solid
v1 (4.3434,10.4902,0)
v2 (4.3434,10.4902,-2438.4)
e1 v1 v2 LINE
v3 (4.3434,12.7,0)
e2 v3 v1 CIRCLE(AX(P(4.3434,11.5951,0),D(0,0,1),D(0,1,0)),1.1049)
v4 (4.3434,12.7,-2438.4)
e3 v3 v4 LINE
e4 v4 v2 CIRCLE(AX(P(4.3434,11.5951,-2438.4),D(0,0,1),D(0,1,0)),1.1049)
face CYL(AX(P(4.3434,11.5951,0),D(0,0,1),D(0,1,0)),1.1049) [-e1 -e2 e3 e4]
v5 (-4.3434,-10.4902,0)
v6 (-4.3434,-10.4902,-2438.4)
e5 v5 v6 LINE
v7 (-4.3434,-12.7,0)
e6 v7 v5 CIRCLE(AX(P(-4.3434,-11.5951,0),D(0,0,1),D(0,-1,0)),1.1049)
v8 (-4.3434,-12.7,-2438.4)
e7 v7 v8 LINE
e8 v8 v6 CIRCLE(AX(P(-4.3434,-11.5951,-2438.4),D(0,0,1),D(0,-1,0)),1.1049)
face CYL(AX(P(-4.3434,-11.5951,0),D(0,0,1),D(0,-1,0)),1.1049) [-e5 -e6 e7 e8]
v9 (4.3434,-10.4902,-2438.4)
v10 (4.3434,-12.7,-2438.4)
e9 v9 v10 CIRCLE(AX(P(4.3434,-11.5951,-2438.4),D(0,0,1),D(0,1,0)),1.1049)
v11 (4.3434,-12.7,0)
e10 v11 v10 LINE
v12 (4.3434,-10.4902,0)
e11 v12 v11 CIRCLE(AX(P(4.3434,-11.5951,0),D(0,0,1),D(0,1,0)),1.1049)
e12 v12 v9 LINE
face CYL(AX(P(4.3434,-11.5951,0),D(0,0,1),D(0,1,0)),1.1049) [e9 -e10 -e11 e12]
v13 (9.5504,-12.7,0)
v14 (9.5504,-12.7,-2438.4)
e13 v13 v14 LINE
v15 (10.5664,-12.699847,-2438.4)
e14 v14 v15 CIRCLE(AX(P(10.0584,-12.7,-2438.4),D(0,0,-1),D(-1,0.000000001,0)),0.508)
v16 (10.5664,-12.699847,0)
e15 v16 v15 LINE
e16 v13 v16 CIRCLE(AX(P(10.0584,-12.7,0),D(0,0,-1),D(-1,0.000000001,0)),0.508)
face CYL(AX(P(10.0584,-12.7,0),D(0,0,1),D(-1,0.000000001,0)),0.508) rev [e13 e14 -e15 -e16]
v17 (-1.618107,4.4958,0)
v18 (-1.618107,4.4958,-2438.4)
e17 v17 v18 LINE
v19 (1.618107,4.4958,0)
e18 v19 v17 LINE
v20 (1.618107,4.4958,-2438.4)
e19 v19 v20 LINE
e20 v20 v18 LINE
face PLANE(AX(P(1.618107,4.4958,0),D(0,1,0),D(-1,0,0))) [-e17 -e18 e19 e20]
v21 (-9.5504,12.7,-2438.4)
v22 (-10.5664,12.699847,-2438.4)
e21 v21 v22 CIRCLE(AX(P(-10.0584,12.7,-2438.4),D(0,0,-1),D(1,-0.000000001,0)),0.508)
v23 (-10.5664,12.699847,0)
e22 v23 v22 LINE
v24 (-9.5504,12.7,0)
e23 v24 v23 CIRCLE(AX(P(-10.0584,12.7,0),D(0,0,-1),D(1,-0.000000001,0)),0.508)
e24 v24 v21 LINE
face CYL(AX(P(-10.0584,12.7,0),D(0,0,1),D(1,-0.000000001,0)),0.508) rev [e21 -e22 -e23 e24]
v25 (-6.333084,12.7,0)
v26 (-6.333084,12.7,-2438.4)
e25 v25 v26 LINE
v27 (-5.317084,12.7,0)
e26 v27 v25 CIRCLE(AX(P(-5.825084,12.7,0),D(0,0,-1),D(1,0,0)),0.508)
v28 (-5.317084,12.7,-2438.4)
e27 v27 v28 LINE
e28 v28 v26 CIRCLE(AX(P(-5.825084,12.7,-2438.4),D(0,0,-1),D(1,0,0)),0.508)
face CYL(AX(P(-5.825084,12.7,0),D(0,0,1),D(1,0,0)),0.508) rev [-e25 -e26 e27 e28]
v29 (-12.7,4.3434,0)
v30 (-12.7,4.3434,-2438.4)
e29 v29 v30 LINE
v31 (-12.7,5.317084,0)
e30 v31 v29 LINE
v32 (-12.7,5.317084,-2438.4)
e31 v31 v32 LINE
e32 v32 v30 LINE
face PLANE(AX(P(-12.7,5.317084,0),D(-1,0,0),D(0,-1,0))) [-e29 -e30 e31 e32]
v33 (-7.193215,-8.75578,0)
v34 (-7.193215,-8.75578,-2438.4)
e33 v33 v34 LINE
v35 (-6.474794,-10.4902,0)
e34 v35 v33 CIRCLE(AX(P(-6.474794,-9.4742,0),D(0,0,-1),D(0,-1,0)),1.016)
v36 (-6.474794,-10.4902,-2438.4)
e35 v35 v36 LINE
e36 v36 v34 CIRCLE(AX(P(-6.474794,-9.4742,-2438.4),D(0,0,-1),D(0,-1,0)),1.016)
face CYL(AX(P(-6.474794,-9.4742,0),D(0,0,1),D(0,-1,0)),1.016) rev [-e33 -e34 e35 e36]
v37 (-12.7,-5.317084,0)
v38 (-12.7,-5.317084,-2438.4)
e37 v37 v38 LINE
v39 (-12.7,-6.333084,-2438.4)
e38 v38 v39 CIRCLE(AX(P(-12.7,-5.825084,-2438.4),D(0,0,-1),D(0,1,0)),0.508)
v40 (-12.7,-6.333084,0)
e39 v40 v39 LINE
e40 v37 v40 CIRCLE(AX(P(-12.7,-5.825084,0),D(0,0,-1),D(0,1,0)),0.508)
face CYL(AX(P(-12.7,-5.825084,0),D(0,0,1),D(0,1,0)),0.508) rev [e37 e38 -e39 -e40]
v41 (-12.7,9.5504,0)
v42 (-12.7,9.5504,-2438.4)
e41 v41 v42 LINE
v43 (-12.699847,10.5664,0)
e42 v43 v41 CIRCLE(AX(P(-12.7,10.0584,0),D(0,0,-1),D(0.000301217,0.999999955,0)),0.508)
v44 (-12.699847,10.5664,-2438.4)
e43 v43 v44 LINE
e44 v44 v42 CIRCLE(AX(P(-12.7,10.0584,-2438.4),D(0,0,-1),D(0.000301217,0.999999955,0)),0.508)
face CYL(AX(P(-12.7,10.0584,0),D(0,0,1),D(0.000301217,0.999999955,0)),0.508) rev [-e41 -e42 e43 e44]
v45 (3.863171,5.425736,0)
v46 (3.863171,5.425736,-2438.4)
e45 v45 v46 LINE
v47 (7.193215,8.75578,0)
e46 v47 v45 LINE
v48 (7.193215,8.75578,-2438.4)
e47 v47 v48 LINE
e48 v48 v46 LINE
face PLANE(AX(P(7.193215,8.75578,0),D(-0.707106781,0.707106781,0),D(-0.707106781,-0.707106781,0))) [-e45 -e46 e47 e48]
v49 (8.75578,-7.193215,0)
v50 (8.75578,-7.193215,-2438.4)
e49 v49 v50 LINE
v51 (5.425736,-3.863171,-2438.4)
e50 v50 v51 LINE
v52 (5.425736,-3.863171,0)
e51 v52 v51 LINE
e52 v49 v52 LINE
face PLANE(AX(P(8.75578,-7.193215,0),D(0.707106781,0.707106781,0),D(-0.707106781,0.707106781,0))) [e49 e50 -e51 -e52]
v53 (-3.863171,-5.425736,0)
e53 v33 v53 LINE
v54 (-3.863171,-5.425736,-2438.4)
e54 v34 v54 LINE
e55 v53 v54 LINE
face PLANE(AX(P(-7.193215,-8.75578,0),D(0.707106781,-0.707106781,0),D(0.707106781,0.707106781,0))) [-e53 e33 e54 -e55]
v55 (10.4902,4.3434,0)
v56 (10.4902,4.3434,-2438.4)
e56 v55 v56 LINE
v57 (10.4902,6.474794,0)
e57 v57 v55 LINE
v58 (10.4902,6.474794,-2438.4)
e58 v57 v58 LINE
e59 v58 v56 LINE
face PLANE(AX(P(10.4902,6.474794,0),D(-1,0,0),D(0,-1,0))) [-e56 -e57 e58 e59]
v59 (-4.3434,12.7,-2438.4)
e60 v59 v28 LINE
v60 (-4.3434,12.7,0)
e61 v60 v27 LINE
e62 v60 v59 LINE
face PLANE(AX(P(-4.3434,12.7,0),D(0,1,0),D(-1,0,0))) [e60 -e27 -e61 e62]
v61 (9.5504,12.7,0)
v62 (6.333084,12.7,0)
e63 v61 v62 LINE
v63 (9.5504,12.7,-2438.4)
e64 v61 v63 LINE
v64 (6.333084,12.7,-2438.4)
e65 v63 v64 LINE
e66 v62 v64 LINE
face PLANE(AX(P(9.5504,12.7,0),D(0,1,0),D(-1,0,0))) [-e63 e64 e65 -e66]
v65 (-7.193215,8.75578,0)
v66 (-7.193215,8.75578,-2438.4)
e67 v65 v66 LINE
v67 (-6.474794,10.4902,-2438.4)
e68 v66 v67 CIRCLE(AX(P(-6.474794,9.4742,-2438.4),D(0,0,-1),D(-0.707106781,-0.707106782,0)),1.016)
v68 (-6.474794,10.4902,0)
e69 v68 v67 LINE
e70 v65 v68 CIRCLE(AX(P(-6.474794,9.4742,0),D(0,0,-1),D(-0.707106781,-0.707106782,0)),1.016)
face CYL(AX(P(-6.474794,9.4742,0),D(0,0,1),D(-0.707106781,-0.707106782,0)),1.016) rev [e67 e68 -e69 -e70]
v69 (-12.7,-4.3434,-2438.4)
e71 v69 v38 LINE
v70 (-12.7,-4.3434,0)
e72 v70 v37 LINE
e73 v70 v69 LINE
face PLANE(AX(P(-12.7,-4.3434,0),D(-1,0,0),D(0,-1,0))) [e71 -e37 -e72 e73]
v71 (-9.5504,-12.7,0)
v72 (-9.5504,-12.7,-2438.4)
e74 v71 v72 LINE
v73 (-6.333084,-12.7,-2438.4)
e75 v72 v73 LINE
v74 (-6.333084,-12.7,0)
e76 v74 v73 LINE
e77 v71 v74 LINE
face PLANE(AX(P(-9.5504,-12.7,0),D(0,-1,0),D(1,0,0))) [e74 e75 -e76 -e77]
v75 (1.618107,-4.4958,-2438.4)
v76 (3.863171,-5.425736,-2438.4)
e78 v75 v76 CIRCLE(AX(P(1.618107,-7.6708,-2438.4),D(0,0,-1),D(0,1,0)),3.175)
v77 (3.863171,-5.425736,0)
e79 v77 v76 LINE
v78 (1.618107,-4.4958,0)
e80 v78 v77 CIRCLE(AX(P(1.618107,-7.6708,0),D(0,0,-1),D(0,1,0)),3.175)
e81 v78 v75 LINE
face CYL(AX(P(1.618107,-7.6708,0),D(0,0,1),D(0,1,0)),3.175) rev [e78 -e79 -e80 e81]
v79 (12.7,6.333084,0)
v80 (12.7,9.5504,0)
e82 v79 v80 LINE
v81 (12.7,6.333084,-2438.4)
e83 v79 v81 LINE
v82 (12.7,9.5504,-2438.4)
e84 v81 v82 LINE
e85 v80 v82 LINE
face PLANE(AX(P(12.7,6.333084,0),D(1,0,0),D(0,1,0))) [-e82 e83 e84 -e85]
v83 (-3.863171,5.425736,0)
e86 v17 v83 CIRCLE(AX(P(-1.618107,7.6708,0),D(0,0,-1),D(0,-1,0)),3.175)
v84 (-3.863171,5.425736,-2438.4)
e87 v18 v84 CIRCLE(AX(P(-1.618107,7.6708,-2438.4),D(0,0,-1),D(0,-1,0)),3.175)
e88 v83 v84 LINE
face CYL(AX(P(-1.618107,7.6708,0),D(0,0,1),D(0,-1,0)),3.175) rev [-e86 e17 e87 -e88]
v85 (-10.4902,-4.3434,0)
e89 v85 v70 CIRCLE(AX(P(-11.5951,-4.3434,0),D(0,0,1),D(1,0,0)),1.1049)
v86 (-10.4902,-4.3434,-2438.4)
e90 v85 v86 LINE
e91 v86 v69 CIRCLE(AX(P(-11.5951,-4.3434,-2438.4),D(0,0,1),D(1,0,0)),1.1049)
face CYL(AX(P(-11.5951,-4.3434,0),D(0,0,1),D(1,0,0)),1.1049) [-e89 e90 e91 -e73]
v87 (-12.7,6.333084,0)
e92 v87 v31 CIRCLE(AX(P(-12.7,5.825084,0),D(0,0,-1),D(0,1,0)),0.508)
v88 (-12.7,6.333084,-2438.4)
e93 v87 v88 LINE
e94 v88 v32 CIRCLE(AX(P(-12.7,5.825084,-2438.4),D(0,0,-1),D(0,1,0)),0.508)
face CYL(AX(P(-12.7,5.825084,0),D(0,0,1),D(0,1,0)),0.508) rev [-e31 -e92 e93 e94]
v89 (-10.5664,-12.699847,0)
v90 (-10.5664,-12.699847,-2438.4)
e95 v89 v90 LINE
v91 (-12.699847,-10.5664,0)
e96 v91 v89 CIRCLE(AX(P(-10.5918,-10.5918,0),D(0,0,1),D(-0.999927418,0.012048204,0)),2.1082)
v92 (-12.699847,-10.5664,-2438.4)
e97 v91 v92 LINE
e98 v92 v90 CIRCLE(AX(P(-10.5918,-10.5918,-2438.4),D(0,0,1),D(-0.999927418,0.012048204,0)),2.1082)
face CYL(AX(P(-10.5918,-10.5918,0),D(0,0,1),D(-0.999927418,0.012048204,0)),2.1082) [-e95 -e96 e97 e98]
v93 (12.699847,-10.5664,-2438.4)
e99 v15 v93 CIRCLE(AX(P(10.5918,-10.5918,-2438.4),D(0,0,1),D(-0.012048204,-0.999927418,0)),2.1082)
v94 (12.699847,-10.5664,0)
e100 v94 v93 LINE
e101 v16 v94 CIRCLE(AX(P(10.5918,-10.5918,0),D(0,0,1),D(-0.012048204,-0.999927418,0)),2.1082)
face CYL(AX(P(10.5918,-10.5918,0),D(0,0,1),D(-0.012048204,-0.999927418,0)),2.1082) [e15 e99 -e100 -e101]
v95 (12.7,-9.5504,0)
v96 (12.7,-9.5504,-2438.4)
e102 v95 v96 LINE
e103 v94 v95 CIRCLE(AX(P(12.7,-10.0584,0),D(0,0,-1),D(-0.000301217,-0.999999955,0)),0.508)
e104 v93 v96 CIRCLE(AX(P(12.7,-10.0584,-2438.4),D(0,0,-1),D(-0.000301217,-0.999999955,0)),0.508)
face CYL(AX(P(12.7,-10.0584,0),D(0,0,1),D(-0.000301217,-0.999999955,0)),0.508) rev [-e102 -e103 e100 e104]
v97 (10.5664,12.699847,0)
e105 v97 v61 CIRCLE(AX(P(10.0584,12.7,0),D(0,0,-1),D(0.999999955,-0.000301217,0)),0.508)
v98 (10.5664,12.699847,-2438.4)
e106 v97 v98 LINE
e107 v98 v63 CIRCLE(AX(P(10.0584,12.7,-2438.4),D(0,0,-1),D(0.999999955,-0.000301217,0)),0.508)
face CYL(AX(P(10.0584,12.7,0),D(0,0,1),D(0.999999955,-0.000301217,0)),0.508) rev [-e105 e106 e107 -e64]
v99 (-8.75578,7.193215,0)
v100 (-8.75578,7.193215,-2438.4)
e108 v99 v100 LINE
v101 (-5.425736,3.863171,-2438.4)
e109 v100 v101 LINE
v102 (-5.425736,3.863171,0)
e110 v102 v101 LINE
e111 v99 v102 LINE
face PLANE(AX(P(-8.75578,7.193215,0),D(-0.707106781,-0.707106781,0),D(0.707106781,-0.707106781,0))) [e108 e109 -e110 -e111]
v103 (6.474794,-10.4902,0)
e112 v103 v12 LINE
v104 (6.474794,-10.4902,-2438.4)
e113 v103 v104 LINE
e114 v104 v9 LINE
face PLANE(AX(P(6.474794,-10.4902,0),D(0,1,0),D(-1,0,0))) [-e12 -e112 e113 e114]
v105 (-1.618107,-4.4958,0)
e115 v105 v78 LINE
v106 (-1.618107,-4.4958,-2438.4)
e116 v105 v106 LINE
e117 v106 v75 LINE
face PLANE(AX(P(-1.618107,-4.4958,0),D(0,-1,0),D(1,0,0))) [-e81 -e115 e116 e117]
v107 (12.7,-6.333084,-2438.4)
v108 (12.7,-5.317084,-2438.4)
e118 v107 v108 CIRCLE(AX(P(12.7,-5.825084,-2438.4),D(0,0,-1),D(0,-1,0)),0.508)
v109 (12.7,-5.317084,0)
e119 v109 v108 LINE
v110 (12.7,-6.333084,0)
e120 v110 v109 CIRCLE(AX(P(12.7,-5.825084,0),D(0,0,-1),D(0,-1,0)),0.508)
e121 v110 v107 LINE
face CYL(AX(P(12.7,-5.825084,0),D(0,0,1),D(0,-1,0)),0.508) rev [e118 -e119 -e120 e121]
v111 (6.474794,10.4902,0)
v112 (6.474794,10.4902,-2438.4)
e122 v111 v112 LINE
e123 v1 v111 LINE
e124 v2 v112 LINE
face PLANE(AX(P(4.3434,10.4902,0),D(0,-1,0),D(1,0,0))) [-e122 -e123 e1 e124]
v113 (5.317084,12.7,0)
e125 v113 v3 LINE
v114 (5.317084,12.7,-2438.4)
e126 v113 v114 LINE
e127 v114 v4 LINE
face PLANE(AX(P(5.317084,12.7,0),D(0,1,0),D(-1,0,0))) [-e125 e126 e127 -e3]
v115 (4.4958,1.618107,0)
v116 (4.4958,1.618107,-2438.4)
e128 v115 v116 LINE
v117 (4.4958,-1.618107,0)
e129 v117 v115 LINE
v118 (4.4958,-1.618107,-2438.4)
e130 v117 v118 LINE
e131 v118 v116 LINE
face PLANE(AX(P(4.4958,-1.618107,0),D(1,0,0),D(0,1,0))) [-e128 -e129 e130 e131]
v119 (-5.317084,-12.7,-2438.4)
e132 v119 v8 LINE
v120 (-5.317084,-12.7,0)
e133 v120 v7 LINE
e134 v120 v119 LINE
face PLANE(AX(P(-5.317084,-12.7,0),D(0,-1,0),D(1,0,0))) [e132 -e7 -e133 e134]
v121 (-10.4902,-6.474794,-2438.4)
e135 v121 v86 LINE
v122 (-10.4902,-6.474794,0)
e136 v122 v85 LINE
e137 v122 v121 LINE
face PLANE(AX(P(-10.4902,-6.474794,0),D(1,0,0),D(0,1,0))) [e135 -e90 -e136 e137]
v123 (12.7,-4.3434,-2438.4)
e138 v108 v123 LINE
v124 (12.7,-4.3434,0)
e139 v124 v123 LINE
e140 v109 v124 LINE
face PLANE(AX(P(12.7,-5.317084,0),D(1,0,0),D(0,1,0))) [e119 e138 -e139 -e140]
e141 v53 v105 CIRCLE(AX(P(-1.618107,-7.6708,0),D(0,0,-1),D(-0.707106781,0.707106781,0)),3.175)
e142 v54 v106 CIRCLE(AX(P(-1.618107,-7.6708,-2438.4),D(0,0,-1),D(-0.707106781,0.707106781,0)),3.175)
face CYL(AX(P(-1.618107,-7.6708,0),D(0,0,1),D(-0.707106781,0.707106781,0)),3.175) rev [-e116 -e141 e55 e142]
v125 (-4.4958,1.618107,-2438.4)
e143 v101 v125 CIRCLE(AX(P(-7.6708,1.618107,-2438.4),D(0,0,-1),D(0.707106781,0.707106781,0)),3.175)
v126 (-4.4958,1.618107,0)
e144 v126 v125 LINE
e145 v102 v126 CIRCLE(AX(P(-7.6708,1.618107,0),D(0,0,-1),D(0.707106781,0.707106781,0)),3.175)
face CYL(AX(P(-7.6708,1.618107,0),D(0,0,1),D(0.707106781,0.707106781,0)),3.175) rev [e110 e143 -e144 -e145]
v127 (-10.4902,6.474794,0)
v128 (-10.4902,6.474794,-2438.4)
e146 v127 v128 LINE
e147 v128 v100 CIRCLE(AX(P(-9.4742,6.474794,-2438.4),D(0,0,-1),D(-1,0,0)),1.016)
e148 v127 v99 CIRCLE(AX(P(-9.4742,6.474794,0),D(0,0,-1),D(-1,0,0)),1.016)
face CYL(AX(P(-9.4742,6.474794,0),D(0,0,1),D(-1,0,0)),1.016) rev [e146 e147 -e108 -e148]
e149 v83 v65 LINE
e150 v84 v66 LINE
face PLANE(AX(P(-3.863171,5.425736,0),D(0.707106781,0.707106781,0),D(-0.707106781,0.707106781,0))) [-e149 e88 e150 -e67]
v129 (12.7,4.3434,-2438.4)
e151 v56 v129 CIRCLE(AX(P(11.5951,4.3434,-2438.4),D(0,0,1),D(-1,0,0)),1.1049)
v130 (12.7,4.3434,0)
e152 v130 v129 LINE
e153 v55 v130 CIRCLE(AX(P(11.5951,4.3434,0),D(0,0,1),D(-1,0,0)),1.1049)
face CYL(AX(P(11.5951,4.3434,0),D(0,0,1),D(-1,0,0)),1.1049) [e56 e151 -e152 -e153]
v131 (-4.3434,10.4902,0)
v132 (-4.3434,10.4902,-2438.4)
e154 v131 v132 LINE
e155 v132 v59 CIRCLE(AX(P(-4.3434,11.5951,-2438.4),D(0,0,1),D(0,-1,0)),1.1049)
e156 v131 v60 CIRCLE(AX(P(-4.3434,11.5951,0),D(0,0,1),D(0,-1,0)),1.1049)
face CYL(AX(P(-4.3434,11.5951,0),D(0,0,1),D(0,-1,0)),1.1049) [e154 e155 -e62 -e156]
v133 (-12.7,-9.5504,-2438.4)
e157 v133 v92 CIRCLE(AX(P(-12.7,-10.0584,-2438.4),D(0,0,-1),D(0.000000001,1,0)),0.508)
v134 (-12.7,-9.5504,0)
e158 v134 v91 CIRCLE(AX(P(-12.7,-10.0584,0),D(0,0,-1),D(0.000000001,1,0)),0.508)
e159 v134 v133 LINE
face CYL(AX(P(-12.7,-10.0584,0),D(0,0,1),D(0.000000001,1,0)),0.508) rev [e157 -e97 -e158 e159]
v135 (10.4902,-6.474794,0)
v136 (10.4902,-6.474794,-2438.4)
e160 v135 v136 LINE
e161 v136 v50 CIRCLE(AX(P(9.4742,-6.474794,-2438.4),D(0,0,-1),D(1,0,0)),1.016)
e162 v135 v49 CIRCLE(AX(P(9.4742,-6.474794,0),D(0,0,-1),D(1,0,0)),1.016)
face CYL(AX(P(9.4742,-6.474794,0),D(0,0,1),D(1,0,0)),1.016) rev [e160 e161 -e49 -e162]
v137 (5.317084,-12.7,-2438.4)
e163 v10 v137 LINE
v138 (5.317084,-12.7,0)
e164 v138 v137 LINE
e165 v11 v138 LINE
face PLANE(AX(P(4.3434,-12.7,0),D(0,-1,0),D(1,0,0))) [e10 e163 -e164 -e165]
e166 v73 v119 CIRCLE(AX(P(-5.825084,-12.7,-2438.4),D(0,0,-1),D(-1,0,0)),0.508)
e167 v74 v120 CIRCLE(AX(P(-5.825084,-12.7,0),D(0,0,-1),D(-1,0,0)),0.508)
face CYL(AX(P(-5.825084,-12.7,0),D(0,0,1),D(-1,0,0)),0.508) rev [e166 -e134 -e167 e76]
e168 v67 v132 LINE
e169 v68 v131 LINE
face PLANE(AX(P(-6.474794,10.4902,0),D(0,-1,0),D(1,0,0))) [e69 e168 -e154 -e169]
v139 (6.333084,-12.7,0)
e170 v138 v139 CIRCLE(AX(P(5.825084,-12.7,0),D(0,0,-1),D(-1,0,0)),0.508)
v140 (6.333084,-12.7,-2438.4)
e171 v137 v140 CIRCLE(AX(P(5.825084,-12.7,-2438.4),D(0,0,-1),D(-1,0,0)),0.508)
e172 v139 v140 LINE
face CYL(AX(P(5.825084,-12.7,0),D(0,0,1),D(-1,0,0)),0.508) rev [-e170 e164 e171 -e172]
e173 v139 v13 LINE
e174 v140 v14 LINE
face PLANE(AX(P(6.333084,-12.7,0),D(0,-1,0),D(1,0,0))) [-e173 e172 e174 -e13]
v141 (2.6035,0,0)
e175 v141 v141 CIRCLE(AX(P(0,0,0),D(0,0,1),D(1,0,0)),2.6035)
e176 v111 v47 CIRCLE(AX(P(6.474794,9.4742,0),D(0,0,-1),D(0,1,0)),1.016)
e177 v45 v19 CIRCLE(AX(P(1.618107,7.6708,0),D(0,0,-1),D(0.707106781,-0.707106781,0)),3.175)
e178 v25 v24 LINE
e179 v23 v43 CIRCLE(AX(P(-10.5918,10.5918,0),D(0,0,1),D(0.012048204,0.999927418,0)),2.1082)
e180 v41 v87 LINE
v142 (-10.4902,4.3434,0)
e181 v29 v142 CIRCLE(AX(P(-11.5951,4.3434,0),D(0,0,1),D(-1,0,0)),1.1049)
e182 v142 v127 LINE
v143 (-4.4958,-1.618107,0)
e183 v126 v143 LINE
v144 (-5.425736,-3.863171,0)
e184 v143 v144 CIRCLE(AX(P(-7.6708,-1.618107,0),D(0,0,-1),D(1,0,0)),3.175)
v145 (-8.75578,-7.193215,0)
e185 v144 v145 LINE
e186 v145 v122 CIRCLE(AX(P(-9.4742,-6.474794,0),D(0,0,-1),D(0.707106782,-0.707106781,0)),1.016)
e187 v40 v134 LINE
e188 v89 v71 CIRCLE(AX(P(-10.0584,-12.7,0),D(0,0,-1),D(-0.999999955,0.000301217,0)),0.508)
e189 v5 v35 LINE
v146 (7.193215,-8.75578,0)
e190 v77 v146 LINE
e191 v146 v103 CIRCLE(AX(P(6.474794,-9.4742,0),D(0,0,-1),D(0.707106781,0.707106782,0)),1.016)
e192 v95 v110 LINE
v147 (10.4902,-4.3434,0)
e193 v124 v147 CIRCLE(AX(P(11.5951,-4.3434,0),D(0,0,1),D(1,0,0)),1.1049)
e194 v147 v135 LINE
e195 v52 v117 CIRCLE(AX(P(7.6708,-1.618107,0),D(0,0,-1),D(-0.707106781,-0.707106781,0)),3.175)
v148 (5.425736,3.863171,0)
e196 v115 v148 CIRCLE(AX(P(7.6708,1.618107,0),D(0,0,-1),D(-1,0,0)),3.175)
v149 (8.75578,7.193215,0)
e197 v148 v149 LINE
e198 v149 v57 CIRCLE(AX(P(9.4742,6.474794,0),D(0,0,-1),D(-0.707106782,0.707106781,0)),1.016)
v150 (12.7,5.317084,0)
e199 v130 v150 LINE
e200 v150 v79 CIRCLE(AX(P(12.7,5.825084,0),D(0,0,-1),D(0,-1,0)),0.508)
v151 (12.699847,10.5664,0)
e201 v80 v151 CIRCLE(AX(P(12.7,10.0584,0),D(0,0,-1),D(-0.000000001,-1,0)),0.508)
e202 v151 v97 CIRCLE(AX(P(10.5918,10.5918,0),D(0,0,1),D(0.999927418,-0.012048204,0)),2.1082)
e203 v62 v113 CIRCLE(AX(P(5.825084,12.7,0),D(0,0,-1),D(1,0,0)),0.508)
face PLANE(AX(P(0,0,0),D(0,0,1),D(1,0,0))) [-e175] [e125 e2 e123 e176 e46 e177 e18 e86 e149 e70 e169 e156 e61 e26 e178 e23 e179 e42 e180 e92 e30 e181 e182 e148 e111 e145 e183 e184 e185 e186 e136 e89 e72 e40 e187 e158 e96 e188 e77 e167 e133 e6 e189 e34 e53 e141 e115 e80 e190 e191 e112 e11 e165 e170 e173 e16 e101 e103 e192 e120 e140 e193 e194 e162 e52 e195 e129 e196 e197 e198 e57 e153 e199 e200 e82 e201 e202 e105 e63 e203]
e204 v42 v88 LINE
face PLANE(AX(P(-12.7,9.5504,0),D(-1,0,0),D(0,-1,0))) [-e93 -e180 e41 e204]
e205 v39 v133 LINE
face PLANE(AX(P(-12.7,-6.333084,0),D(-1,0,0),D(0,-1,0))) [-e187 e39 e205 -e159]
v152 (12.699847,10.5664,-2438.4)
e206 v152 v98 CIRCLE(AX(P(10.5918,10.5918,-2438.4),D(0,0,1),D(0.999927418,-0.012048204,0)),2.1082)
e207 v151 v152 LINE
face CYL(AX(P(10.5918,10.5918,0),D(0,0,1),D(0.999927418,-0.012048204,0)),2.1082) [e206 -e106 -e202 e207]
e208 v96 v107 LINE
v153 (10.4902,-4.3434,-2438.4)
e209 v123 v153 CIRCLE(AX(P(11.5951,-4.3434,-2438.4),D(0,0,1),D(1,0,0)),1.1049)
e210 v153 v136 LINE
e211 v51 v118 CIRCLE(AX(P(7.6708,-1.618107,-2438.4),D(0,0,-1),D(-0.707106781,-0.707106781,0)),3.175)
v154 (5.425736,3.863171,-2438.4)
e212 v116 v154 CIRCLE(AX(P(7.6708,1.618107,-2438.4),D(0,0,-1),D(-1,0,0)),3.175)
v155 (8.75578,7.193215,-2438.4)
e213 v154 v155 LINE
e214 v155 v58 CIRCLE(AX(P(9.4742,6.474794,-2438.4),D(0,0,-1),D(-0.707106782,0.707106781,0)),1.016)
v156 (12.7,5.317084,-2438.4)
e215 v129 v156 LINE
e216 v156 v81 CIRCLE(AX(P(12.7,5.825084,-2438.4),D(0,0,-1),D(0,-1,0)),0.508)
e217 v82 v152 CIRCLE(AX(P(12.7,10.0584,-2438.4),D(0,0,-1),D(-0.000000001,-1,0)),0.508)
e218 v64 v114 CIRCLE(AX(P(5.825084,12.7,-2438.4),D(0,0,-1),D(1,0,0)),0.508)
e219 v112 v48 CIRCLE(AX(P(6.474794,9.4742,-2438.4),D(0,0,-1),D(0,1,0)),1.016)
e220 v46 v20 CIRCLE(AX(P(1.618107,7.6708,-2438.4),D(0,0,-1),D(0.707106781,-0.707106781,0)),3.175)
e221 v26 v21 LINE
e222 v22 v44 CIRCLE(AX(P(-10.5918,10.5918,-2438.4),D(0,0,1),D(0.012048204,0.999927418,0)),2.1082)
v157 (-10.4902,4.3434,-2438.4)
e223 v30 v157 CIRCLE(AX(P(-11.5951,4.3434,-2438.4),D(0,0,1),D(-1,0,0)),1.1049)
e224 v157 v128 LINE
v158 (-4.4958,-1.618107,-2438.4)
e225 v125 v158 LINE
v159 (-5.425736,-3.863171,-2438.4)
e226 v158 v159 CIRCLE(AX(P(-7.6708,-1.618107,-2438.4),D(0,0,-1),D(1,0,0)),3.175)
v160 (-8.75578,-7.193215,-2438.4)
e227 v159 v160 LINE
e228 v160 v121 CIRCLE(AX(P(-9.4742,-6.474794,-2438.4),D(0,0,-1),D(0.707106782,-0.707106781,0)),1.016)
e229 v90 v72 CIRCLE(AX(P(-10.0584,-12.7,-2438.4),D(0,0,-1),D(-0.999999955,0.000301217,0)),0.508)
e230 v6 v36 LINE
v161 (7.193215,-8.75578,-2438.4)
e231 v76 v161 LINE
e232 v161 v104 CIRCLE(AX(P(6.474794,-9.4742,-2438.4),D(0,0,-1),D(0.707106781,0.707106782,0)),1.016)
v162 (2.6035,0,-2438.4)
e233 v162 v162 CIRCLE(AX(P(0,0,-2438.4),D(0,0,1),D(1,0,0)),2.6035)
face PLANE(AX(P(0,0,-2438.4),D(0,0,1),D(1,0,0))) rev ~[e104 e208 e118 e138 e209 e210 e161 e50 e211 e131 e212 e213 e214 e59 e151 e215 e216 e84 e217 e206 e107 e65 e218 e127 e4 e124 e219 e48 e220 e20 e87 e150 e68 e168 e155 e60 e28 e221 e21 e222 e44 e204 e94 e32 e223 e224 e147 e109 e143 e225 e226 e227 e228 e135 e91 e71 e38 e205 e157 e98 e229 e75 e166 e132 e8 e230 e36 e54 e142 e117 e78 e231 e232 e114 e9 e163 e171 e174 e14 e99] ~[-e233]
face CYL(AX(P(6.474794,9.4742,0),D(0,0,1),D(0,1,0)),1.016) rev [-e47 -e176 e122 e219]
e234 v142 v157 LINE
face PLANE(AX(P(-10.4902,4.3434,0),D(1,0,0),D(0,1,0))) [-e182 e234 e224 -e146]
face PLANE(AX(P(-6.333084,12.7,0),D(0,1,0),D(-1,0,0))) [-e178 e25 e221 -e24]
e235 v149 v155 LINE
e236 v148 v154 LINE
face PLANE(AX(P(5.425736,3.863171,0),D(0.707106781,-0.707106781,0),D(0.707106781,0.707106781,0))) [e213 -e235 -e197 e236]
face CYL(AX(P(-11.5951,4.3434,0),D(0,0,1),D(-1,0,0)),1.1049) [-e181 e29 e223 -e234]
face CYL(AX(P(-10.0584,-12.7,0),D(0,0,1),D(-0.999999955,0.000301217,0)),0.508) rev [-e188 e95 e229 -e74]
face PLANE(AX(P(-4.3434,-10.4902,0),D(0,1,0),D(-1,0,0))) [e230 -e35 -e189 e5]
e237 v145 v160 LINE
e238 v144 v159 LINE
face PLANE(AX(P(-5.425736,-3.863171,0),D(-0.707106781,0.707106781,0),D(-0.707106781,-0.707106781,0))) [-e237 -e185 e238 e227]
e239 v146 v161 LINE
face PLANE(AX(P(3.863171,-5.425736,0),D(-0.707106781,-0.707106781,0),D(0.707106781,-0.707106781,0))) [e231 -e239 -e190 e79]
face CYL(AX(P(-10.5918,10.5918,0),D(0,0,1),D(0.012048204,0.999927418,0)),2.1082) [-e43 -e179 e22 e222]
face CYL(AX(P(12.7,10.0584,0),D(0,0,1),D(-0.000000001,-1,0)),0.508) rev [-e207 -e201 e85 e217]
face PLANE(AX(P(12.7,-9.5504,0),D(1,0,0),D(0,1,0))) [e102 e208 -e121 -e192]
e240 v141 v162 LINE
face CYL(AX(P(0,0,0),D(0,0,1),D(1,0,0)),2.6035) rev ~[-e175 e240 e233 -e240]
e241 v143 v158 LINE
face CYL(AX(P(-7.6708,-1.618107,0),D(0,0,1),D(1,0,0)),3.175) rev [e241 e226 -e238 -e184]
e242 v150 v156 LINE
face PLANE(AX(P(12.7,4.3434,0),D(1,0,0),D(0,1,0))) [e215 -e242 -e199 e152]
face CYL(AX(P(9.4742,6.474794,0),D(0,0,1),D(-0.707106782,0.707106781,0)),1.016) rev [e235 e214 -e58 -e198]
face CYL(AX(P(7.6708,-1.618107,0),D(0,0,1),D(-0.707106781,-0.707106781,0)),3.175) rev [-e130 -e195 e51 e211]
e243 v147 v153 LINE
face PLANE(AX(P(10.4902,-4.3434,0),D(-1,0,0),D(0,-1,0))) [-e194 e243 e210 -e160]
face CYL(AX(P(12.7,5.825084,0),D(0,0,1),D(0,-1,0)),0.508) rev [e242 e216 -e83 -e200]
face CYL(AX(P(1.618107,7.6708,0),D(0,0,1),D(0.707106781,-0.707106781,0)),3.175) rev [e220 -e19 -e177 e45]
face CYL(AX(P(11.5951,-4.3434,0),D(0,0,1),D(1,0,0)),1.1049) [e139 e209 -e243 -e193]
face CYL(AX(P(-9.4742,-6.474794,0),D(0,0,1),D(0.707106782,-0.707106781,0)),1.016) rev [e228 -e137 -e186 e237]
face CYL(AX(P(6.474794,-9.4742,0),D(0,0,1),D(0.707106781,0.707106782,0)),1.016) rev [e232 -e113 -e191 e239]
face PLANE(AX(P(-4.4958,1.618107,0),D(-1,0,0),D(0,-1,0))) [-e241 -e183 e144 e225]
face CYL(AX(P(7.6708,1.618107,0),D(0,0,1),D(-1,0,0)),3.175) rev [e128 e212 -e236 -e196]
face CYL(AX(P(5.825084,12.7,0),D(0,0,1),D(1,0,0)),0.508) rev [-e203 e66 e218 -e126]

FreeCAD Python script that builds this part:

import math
import FreeCAD as App
import Part
import Sketcher
Q = App.Units.Quantity

doc = App.newDocument("Part")
body = doc.addObject("PartDesign::Body", "Body")

# Sketch on XY plane
sketch1 = body.newObject("Sketcher::SketchObject", "Sketch")
sketch1.AttachmentSupport = (doc.getObject("XY_Plane"), [""])
sketch1.MapMode = "FlatFace"
sketch1.addGeometry([
    Part.LineSegment(App.Vector(-12.7, -6.333084, 0), App.Vector(-12.7, -9.5504, 0)),  # 0
    Part.ArcOfCircle(Part.Circle(App.Vector(-12.7, -10.0584, 0), App.Vector(0, 0, 1), 0.508), math.radians(-89.982742), math.radians(90)),  # 1
    Part.ArcOfCircle(Part.Circle(App.Vector(-10.5918, -10.5918, 0), App.Vector(0, 0, 1), 2.1082), math.radians(179.309672), math.radians(270.690328)),  # 2
    Part.ArcOfCircle(Part.Circle(App.Vector(-10.0584, -12.7, 0), App.Vector(0, 0, 1), 0.508), math.radians(0), math.radians(179.982742)),  # 3
    Part.LineSegment(App.Vector(-9.5504, -12.7, 0), App.Vector(-6.333084, -12.7, 0)),  # 4
    Part.ArcOfCircle(Part.Circle(App.Vector(-5.825084, -12.7, 0), App.Vector(0, 0, 1), 0.508), math.radians(0), math.radians(180)),  # 5
    Part.LineSegment(App.Vector(-5.317084, -12.7, 0), App.Vector(-4.3434, -12.7, 0)),  # 6
    Part.ArcOfCircle(Part.Circle(App.Vector(-4.3434, -11.5951, 0), App.Vector(0, 0, 1), 1.1049), math.radians(-90), math.radians(90)),  # 7
    Part.LineSegment(App.Vector(-4.3434, -10.4902, 0), App.Vector(-6.474794, -10.4902, 0)),  # 8
    Part.ArcOfCircle(Part.Circle(App.Vector(-6.474794, -9.4742, 0), App.Vector(0, 0, 1), 1.016), math.radians(135), math.radians(270)),  # 9
    Part.LineSegment(App.Vector(-7.193215, -8.75578, 0), App.Vector(-3.863171, -5.425736, 0)),  # 10
    Part.ArcOfCircle(Part.Circle(App.Vector(-1.618107, -7.6708, 0), App.Vector(0, 0, 1), 3.175), math.radians(90), math.radians(135)),  # 11
    Part.LineSegment(App.Vector(-1.618107, -4.4958, 0), App.Vector(1.618107, -4.4958, 0)),  # 12
    Part.ArcOfCircle(Part.Circle(App.Vector(1.618107, -7.6708, 0), App.Vector(0, 0, 1), 3.175), math.radians(45), math.radians(90)),  # 13
    Part.LineSegment(App.Vector(3.863171, -5.425736, 0), App.Vector(7.193215, -8.75578, 0)),  # 14
    Part.ArcOfCircle(Part.Circle(App.Vector(6.474794, -9.4742, 0), App.Vector(0, 0, 1), 1.016), math.radians(-90), math.radians(45)),  # 15
    Part.LineSegment(App.Vector(6.474794, -10.4902, 0), App.Vector(4.3434, -10.4902, 0)),  # 16
    Part.ArcOfCircle(Part.Circle(App.Vector(4.3434, -11.5951, 0), App.Vector(0, 0, 1), 1.1049), math.radians(90), math.radians(270)),  # 17
    Part.LineSegment(App.Vector(4.3434, -12.7, 0), App.Vector(5.317084, -12.7, 0)),  # 18
    Part.ArcOfCircle(Part.Circle(App.Vector(5.825084, -12.7, 0), App.Vector(0, 0, 1), 0.508), math.radians(0), math.radians(180)),  # 19
    Part.LineSegment(App.Vector(6.333084, -12.7, 0), App.Vector(9.5504, -12.7, 0)),  # 20
    Part.ArcOfCircle(Part.Circle(App.Vector(10.0584, -12.7, 0), App.Vector(0, 0, 1), 0.508), math.radians(0.017258), math.radians(180)),  # 21
    Part.ArcOfCircle(Part.Circle(App.Vector(10.5918, -10.5918, 0), App.Vector(0, 0, 1), 2.1082), math.radians(-90.690328), math.radians(0.690328)),  # 22
    Part.ArcOfCircle(Part.Circle(App.Vector(12.7, -10.0584, 0), App.Vector(0, 0, 1), 0.508), math.radians(90), math.radians(269.982742)),  # 23
    Part.LineSegment(App.Vector(12.7, -9.5504, 0), App.Vector(12.7, -6.333084, 0)),  # 24
    Part.ArcOfCircle(Part.Circle(App.Vector(12.7, -5.825084, 0), App.Vector(0, 0, 1), 0.508), math.radians(90), math.radians(270)),  # 25
    Part.LineSegment(App.Vector(12.7, -5.317084, 0), App.Vector(12.7, -4.3434, 0)),  # 26
    Part.ArcOfCircle(Part.Circle(App.Vector(11.5951, -4.3434, 0), App.Vector(0, 0, 1), 1.1049), math.radians(0), math.radians(180)),  # 27
    Part.LineSegment(App.Vector(10.4902, -4.3434, 0), App.Vector(10.4902, -6.474794, 0)),  # 28
    Part.ArcOfCircle(Part.Circle(App.Vector(9.4742, -6.474794, 0), App.Vector(0, 0, 1), 1.016), math.radians(-135), math.radians(0)),  # 29
    Part.LineSegment(App.Vector(8.75578, -7.193215, 0), App.Vector(5.425736, -3.863171, 0)),  # 30
    Part.ArcOfCircle(Part.Circle(App.Vector(7.6708, -1.618107, 0), App.Vector(0, 0, 1), 3.175), math.radians(180), math.radians(225)),  # 31
    Part.LineSegment(App.Vector(4.4958, -1.618107, 0), App.Vector(4.4958, 1.618107, 0)),  # 32
    Part.ArcOfCircle(Part.Circle(App.Vector(7.6708, 1.618107, 0), App.Vector(0, 0, 1), 3.175), math.radians(135), math.radians(180)),  # 33
    Part.LineSegment(App.Vector(5.425736, 3.863171, 0), App.Vector(8.75578, 7.193215, 0)),  # 34
    Part.ArcOfCircle(Part.Circle(App.Vector(9.4742, 6.474794, 0), App.Vector(0, 0, 1), 1.016), math.radians(0), math.radians(135)),  # 35
    Part.LineSegment(App.Vector(10.4902, 6.474794, 0), App.Vector(10.4902, 4.3434, 0)),  # 36
    Part.ArcOfCircle(Part.Circle(App.Vector(11.5951, 4.3434, 0), App.Vector(0, 0, 1), 1.1049), math.radians(180), math.radians(360)),  # 37
    Part.LineSegment(App.Vector(12.7, 4.3434, 0), App.Vector(12.7, 5.317084, 0)),  # 38
    Part.ArcOfCircle(Part.Circle(App.Vector(12.7, 5.825084, 0), App.Vector(0, 0, 1), 0.508), math.radians(90), math.radians(270)),  # 39
    Part.LineSegment(App.Vector(12.7, 6.333084, 0), App.Vector(12.7, 9.5504, 0)),  # 40
    Part.ArcOfCircle(Part.Circle(App.Vector(12.7, 10.0584, 0), App.Vector(0, 0, 1), 0.508), math.radians(90.017258), math.radians(270)),  # 41
    Part.ArcOfCircle(Part.Circle(App.Vector(10.5918, 10.5918, 0), App.Vector(0, 0, 1), 2.1082), math.radians(-0.690328), math.radians(90.690328)),  # 42
    Part.ArcOfCircle(Part.Circle(App.Vector(10.0584, 12.7, 0), App.Vector(0, 0, 1), 0.508), math.radians(180), math.radians(359.982742)),  # 43
    Part.LineSegment(App.Vector(9.5504, 12.7, 0), App.Vector(6.333084, 12.7, 0)),  # 44
    Part.ArcOfCircle(Part.Circle(App.Vector(5.825084, 12.7, 0), App.Vector(0, 0, 1), 0.508), math.radians(180), math.radians(360)),  # 45
    Part.LineSegment(App.Vector(5.317084, 12.7, 0), App.Vector(4.3434, 12.7, 0)),  # 46
    Part.ArcOfCircle(Part.Circle(App.Vector(4.3434, 11.5951, 0), App.Vector(0, 0, 1), 1.1049), math.radians(90), math.radians(270)),  # 47
    Part.LineSegment(App.Vector(4.3434, 10.4902, 0), App.Vector(6.474794, 10.4902, 0)),  # 48
    Part.ArcOfCircle(Part.Circle(App.Vector(6.474794, 9.4742, 0), App.Vector(0, 0, 1), 1.016), math.radians(-45), math.radians(90)),  # 49
    Part.LineSegment(App.Vector(7.193215, 8.75578, 0), App.Vector(3.863171, 5.425736, 0)),  # 50
    Part.ArcOfCircle(Part.Circle(App.Vector(1.618107, 7.6708, 0), App.Vector(0, 0, 1), 3.175), math.radians(-90), math.radians(-45)),  # 51
    Part.LineSegment(App.Vector(1.618107, 4.4958, 0), App.Vector(-1.618107, 4.4958, 0)),  # 52
    Part.ArcOfCircle(Part.Circle(App.Vector(-1.618107, 7.6708, 0), App.Vector(0, 0, 1), 3.175), math.radians(-135), math.radians(-90)),  # 53
    Part.LineSegment(App.Vector(-3.863171, 5.425736, 0), App.Vector(-7.193215, 8.75578, 0)),  # 54
    Part.ArcOfCircle(Part.Circle(App.Vector(-6.474794, 9.4742, 0), App.Vector(0, 0, 1), 1.016), math.radians(90), math.radians(225)),  # 55
    Part.LineSegment(App.Vector(-6.474794, 10.4902, 0), App.Vector(-4.3434, 10.4902, 0)),  # 56
    Part.ArcOfCircle(Part.Circle(App.Vector(-4.3434, 11.5951, 0), App.Vector(0, 0, 1), 1.1049), math.radians(-90), math.radians(90)),  # 57
    Part.LineSegment(App.Vector(-4.3434, 12.7, 0), App.Vector(-5.317084, 12.7, 0)),  # 58
    Part.ArcOfCircle(Part.Circle(App.Vector(-5.825084, 12.7, 0), App.Vector(0, 0, 1), 0.508), math.radians(180), math.radians(360)),  # 59
    Part.LineSegment(App.Vector(-6.333084, 12.7, 0), App.Vector(-9.5504, 12.7, 0)),  # 60
    Part.ArcOfCircle(Part.Circle(App.Vector(-10.0584, 12.7, 0), App.Vector(0, 0, 1), 0.508), math.radians(-179.982742), math.radians(0)),  # 61
    Part.ArcOfCircle(Part.Circle(App.Vector(-10.5918, 10.5918, 0), App.Vector(0, 0, 1), 2.1082), math.radians(89.309672), math.radians(180.690328)),  # 62
    Part.ArcOfCircle(Part.Circle(App.Vector(-12.7, 10.0584, 0), App.Vector(0, 0, 1), 0.508), math.radians(-90), math.radians(89.982742)),  # 63
    Part.LineSegment(App.Vector(-12.7, 9.5504, 0), App.Vector(-12.7, 6.333084, 0)),  # 64
    Part.ArcOfCircle(Part.Circle(App.Vector(-12.7, 5.825084, 0), App.Vector(0, 0, 1), 0.508), math.radians(-90), math.radians(90)),  # 65
    Part.LineSegment(App.Vector(-12.7, 5.317084, 0), App.Vector(-12.7, 4.3434, 0)),  # 66
    Part.ArcOfCircle(Part.Circle(App.Vector(-11.5951, 4.3434, 0), App.Vector(0, 0, 1), 1.1049), math.radians(180), math.radians(360)),  # 67
    Part.LineSegment(App.Vector(-10.4902, 4.3434, 0), App.Vector(-10.4902, 6.474794, 0)),  # 68
    Part.ArcOfCircle(Part.Circle(App.Vector(-9.4742, 6.474794, 0), App.Vector(0, 0, 1), 1.016), math.radians(45), math.radians(180)),  # 69
    Part.LineSegment(App.Vector(-8.75578, 7.193215, 0), App.Vector(-5.425736, 3.863171, 0)),  # 70
    Part.ArcOfCircle(Part.Circle(App.Vector(-7.6708, 1.618107, 0), App.Vector(0, 0, 1), 3.175), math.radians(0), math.radians(45)),  # 71
    Part.LineSegment(App.Vector(-4.4958, 1.618107, 0), App.Vector(-4.4958, -1.618107, 0)),  # 72
    Part.ArcOfCircle(Part.Circle(App.Vector(-7.6708, -1.618107, 0), App.Vector(0, 0, 1), 3.175), math.radians(-45), math.radians(0)),  # 73
    Part.LineSegment(App.Vector(-5.425736, -3.863171, 0), App.Vector(-8.75578, -7.193215, 0)),  # 74
    Part.ArcOfCircle(Part.Circle(App.Vector(-9.4742, -6.474794, 0), App.Vector(0, 0, 1), 1.016), math.radians(180), math.radians(315)),  # 75
    Part.LineSegment(App.Vector(-10.4902, -6.474794, 0), App.Vector(-10.4902, -4.3434, 0)),  # 76
    Part.ArcOfCircle(Part.Circle(App.Vector(-11.5951, -4.3434, 0), App.Vector(0, 0, 1), 1.1049), math.radians(0), math.radians(180)),  # 77
    Part.LineSegment(App.Vector(-12.7, -4.3434, 0), App.Vector(-12.7, -5.317084, 0)),  # 78
    Part.ArcOfCircle(Part.Circle(App.Vector(-12.7, -5.825084, 0), App.Vector(0, 0, 1), 0.508), math.radians(-90), math.radians(90)),  # 79
    Part.Circle(App.Vector(0, 0, 0), App.Vector(0, 0, 1), 2.6035),  # 80
], False)
sketch1.addConstraint([
    Sketcher.Constraint("Coincident", 0, 2, 1, 2),
    Sketcher.Constraint("Coincident", 1, 1, 2, 1),
    Sketcher.Constraint("Coincident", 2, 2, 3, 2),
    Sketcher.Constraint("Coincident", 3, 1, 4, 1),
    Sketcher.Constraint("Coincident", 4, 2, 5, 2),
    Sketcher.Constraint("Coincident", 5, 1, 6, 1),
    Sketcher.Constraint("Tangent", 6, 2, 7, 1),
    Sketcher.Constraint("Tangent", 7, 2, 8, 1),
    Sketcher.Constraint("Tangent", 8, 2, 9, 2),
    Sketcher.Constraint("Tangent", 9, 1, 10, 1),
    Sketcher.Constraint("Tangent", 10, 2, 11, 2),
    Sketcher.Constraint("Tangent", 11, 1, 12, 1),
    Sketcher.Constraint("Tangent", 12, 2, 13, 2),
    Sketcher.Constraint("Tangent", 13, 1, 14, 1),
    Sketcher.Constraint("Tangent", 14, 2, 15, 2),
    Sketcher.Constraint("Tangent", 15, 1, 16, 1),
    Sketcher.Constraint("Tangent", 16, 2, 17, 1),
    Sketcher.Constraint("Tangent", 17, 2, 18, 1),
    Sketcher.Constraint("Coincident", 18, 2, 19, 2),
    Sketcher.Constraint("Coincident", 19, 1, 20, 1),
    Sketcher.Constraint("Coincident", 20, 2, 21, 2),
    Sketcher.Constraint("Coincident", 21, 1, 22, 1),
    Sketcher.Constraint("Coincident", 22, 2, 23, 2),
    Sketcher.Constraint("Coincident", 23, 1, 24, 1),
    Sketcher.Constraint("Coincident", 24, 2, 25, 2),
    Sketcher.Constraint("Coincident", 25, 1, 26, 1),
    Sketcher.Constraint("Tangent", 26, 2, 27, 1),
    Sketcher.Constraint("Tangent", 27, 2, 28, 1),
    Sketcher.Constraint("Tangent", 28, 2, 29, 2),
    Sketcher.Constraint("Tangent", 29, 1, 30, 1),
    Sketcher.Constraint("Tangent", 30, 2, 31, 2),
    Sketcher.Constraint("Tangent", 31, 1, 32, 1),
    Sketcher.Constraint("Tangent", 32, 2, 33, 2),
    Sketcher.Constraint("Tangent", 33, 1, 34, 1),
    Sketcher.Constraint("Tangent", 34, 2, 35, 2),
    Sketcher.Constraint("Tangent", 35, 1, 36, 1),
    Sketcher.Constraint("Tangent", 36, 2, 37, 1),
    Sketcher.Constraint("Tangent", 37, 2, 38, 1),
    Sketcher.Constraint("Coincident", 38, 2, 39, 2),
    Sketcher.Constraint("Coincident", 39, 1, 40, 1),
    Sketcher.Constraint("Coincident", 40, 2, 41, 2),
    Sketcher.Constraint("Coincident", 41, 1, 42, 1),
    Sketcher.Constraint("Coincident", 42, 2, 43, 2),
    Sketcher.Constraint("Coincident", 43, 1, 44, 1),
    Sketcher.Constraint("Coincident", 44, 2, 45, 2),
    Sketcher.Constraint("Coincident", 45, 1, 46, 1),
    Sketcher.Constraint("Tangent", 46, 2, 47, 1),
    Sketcher.Constraint("Tangent", 47, 2, 48, 1),
    Sketcher.Constraint("Tangent", 48, 2, 49, 2),
    Sketcher.Constraint("Tangent", 49, 1, 50, 1),
    Sketcher.Constraint("Tangent", 50, 2, 51, 2),
    Sketcher.Constraint("Tangent", 51, 1, 52, 1),
    Sketcher.Constraint("Tangent", 52, 2, 53, 2),
    Sketcher.Constraint("Tangent", 53, 1, 54, 1),
    Sketcher.Constraint("Tangent", 54, 2, 55, 2),
    Sketcher.Constraint("Tangent", 55, 1, 56, 1),
    Sketcher.Constraint("Tangent", 56, 2, 57, 1),
    Sketcher.Constraint("Tangent", 57, 2, 58, 1),
    Sketcher.Constraint("Coincident", 58, 2, 59, 2),
    Sketcher.Constraint("Coincident", 59, 1, 60, 1),
    Sketcher.Constraint("Coincident", 60, 2, 61, 2),
    Sketcher.Constraint("Coincident", 61, 1, 62, 1),
    Sketcher.Constraint("Coincident", 62, 2, 63, 2),
    Sketcher.Constraint("Coincident", 63, 1, 64, 1),
    Sketcher.Constraint("Coincident", 64, 2, 65, 2),
    Sketcher.Constraint("Coincident", 65, 1, 66, 1),
    Sketcher.Constraint("Tangent", 66, 2, 67, 1),
    Sketcher.Constraint("Tangent", 67, 2, 68, 1),
    Sketcher.Constraint("Tangent", 68, 2, 69, 2),
    Sketcher.Constraint("Tangent", 69, 1, 70, 1),
    Sketcher.Constraint("Tangent", 70, 2, 71, 2),
    Sketcher.Constraint("Tangent", 71, 1, 72, 1),
    Sketcher.Constraint("Tangent", 72, 2, 73, 2),
    Sketcher.Constraint("Tangent", 73, 1, 74, 1),
    Sketcher.Constraint("Tangent", 74, 2, 75, 2),
    Sketcher.Constraint("Tangent", 75, 1, 76, 1),
    Sketcher.Constraint("Tangent", 76, 2, 77, 1),
    Sketcher.Constraint("Tangent", 77, 2, 78, 1),
    Sketcher.Constraint("Coincident", 78, 2, 79, 2),
    Sketcher.Constraint("Coincident", 79, 1, 0, 1),
    Sketcher.Constraint("Vertical", 0),
    Sketcher.Constraint("Horizontal", 4),
    Sketcher.Constraint("Horizontal", 6),
    Sketcher.Constraint("Horizontal", 8),
    Sketcher.Constraint("Horizontal", 12),
    Sketcher.Constraint("Horizontal", 16),
    Sketcher.Constraint("Horizontal", 18),
    Sketcher.Constraint("Horizontal", 20),
    Sketcher.Constraint("Vertical", 24),
    Sketcher.Constraint("Vertical", 26),
    Sketcher.Constraint("Vertical", 28),
    Sketcher.Constraint("Vertical", 32),
    Sketcher.Constraint("Vertical", 36),
    Sketcher.Constraint("Vertical", 38),
    Sketcher.Constraint("Vertical", 40),
    Sketcher.Constraint("Horizontal", 44),
    Sketcher.Constraint("Horizontal", 46),
    Sketcher.Constraint("Horizontal", 48),
    Sketcher.Constraint("Horizontal", 52),
    Sketcher.Constraint("Horizontal", 56),
    Sketcher.Constraint("Horizontal", 58),
    Sketcher.Constraint("Horizontal", 60),
    Sketcher.Constraint("Vertical", 64),
    Sketcher.Constraint("Vertical", 66),
    Sketcher.Constraint("Vertical", 68),
    Sketcher.Constraint("Vertical", 72),
    Sketcher.Constraint("Vertical", 76),
    Sketcher.Constraint("Vertical", 78),
    Sketcher.Constraint("Coincident", 80, 3, -1, 1),
    Sketcher.Constraint("Equal", 1, 3),
    Sketcher.Constraint("Equal", 3, 5),
    Sketcher.Constraint("Equal", 11, 13),
    Sketcher.Constraint("Equal", 9, 15),
    Sketcher.Constraint("Equal", 7, 17),
    Sketcher.Constraint("Equal", 5, 19),
    Sketcher.Constraint("Equal", 19, 21),
    Sketcher.Constraint("Equal", 2, 22),
    Sketcher.Constraint("Equal", 21, 23),
    Sketcher.Constraint("Equal", 23, 25),
    Sketcher.Constraint("Equal", 17, 27),
    Sketcher.Constraint("Equal", 15, 29),
    Sketcher.Constraint("Equal", 13, 31),
    Sketcher.Constraint("Equal", 31, 33),
    Sketcher.Constraint("Equal", 29, 35),
    Sketcher.Constraint("Equal", 27, 37),
    Sketcher.Constraint("Equal", 25, 39),
    Sketcher.Constraint("Equal", 39, 41),
    Sketcher.Constraint("Equal", 22, 42),
    Sketcher.Constraint("Equal", 41, 43),
    Sketcher.Constraint("Equal", 43, 45),
    Sketcher.Constraint("Equal", 37, 47),
    Sketcher.Constraint("Equal", 35, 49),
    Sketcher.Constraint("Equal", 33, 51),
    Sketcher.Constraint("Equal", 51, 53),
    Sketcher.Constraint("Equal", 49, 55),
    Sketcher.Constraint("Equal", 47, 57),
    Sketcher.Constraint("Equal", 45, 59),
    Sketcher.Constraint("Equal", 59, 61),
    Sketcher.Constraint("Equal", 42, 62),
    Sketcher.Constraint("Equal", 61, 63),
    Sketcher.Constraint("Equal", 63, 65),
    Sketcher.Constraint("Equal", 57, 67),
    Sketcher.Constraint("Equal", 55, 69),
    Sketcher.Constraint("Equal", 53, 71),
    Sketcher.Constraint("Equal", 71, 73),
    Sketcher.Constraint("Equal", 69, 75),
    Sketcher.Constraint("Equal", 67, 77),
    Sketcher.Constraint("Equal", 65, 79),
    Sketcher.Constraint("Symmetric", 1, 3, 41, 3, -1, 1),
    Sketcher.Constraint("Symmetric", 2, 3, 42, 3, -1, 1),
    Sketcher.Constraint("Symmetric", 3, 3, 43, 3, -1, 1),
    Sketcher.Constraint("Symmetric", 5, 3, 45, 3, -1, 1),
    Sketcher.Constraint("Symmetric", 7, 3, 47, 3, -1, 1),
    Sketcher.Constraint("Symmetric", 11, 3, 51, 3, -1, 1),
    Sketcher.Constraint("Symmetric", 15, 3, 55, 3, -1, 1),
    Sketcher.Constraint("Symmetric", 19, 3, 59, 3, -1, 1),
    Sketcher.Constraint("Symmetric", 21, 3, 61, 3, -1, 1),
    Sketcher.Constraint("Symmetric", 22, 3, 62, 3, -1, 1),
    Sketcher.Constraint("Symmetric", 23, 3, 63, 3, -1, 1),
    Sketcher.Constraint("Symmetric", 25, 3, 65, 3, -1, 1),
    Sketcher.Constraint("Symmetric", 27, 3, 67, 3, -1, 1),
    Sketcher.Constraint("Symmetric", 31, 3, 71, 3, -1, 1),
    Sketcher.Constraint("Symmetric", 35, 3, 75, 3, -1, 1),
    Sketcher.Constraint("Symmetric", 39, 3, 79, 3, -1, 1),
    Sketcher.Constraint("Symmetric", 9, 3, 15, 3, -2),
    Sketcher.Constraint("Symmetric", 5, 3, 19, 3, -2),
    Sketcher.Constraint("Symmetric", 3, 3, 21, 3, -2),
    Sketcher.Constraint("Symmetric", 2, 3, 22, 3, -2),
    Sketcher.Constraint("Symmetric", 1, 3, 23, 3, -2),
    Sketcher.Constraint("Symmetric", 39, 3, 65, 3, -2),
    Sketcher.Constraint("Symmetric", 37, 3, 67, 3, -2),
    Sketcher.Constraint("Symmetric", 50, 2, 53, 1, -2),
    Sketcher.Constraint("Symmetric", 34, 2, 69, 1, -2),
    Sketcher.Constraint("Symmetric", 30, 2, 73, 1, -2),
    Sketcher.Constraint("Perpendicular", 10, 14),
    Sketcher.Constraint("Parallel", 14, 30),
    Sketcher.Constraint("Perpendicular", 30, 34),
    Sketcher.Constraint("Horizontal", 3, 3, 5, 3),
    Sketcher.Constraint("Horizontal", 27, 3, 77, 3),
    Sketcher.Constraint("Horizontal", 21, 3, 3, 1),
    Sketcher.Constraint("Horizontal", 4, 2, 5, 1),
    Sketcher.Constraint("Horizontal", 18, 2, 19, 1),
    Sketcher.Constraint("Horizontal", 61, 3, 43, 1),
    Sketcher.Constraint("Horizontal", 58, 2, 59, 1),
    Sketcher.Constraint("Vertical", 23, 3, 25, 3),
    Sketcher.Constraint("Vertical", 17, 3, 47, 3),
    Sketcher.Constraint("Vertical", 7, 3, 57, 3),
    Sketcher.Constraint("Vertical", 79, 3, 0, 2),
    Sketcher.Constraint("Vertical", 41, 3, 23, 1),
    Sketcher.Constraint("Vertical", 24, 2, 25, 1),
    Sketcher.Constraint("Vertical", 38, 2, 39, 1),
    Sketcher.Constraint("Vertical", 0, 2, 63, 1),
    Sketcher.Constraint("Equal", 60, 0),
    Sketcher.Constraint("Equal", 58, 26),
    Sketcher.Constraint("Equal", 56, 28),
    Sketcher.Constraint("Equal", 52, 32),
    Sketcher.Constraint("Equal", 14, 30),
    Sketcher.Constraint("Radius", 1, Q("0.02 in")),
    Sketcher.Constraint("Radius", 9, Q("0.04 in")),
    Sketcher.Constraint("Diameter", 80, Q("0.205 in")),
    Sketcher.Constraint("Radius", 2, Q("0.083 in")),
    Sketcher.Constraint("Radius", 11, Q("0.125 in")),
    Sketcher.Constraint("DistanceX", 1, 3, -1, 1, Q("0.5 in")),
    Sketcher.Constraint("DistanceY", 3, 3, -1, 1, Q("0.5 in")),
    Sketcher.Constraint("Radius", 7, Q("0.0435 in")),
    Sketcher.Constraint("DistanceY", 1, 3, -1, 1, Q("0.396 in")),
    Sketcher.Constraint("DistanceX", 2, 3, -1, 1, Q("0.417 in")),
    Sketcher.Constraint("DistanceY", 2, 3, -1, 1, Q("0.417 in")),
    Sketcher.Constraint("DistanceX", 7, 3, -1, 1, Q("0.171 in")),
    Sketcher.Constraint("DistanceY", 11, 3, -1, 1, Q("0.302 in")),
    Sketcher.Constraint("DistanceX", 4, 1, 4, 2, Q("3.217316 mm")),
    Sketcher.Constraint("DistanceX", 8, 2, 8, 1, Q("2.131394 mm")),
])
pad1 = body.newObject("PartDesign::Pad", "Pad")
pad1.Profile = sketch1
pad1.Length = Q("96 in")
pad1.Reversed = True

doc.recompute()
